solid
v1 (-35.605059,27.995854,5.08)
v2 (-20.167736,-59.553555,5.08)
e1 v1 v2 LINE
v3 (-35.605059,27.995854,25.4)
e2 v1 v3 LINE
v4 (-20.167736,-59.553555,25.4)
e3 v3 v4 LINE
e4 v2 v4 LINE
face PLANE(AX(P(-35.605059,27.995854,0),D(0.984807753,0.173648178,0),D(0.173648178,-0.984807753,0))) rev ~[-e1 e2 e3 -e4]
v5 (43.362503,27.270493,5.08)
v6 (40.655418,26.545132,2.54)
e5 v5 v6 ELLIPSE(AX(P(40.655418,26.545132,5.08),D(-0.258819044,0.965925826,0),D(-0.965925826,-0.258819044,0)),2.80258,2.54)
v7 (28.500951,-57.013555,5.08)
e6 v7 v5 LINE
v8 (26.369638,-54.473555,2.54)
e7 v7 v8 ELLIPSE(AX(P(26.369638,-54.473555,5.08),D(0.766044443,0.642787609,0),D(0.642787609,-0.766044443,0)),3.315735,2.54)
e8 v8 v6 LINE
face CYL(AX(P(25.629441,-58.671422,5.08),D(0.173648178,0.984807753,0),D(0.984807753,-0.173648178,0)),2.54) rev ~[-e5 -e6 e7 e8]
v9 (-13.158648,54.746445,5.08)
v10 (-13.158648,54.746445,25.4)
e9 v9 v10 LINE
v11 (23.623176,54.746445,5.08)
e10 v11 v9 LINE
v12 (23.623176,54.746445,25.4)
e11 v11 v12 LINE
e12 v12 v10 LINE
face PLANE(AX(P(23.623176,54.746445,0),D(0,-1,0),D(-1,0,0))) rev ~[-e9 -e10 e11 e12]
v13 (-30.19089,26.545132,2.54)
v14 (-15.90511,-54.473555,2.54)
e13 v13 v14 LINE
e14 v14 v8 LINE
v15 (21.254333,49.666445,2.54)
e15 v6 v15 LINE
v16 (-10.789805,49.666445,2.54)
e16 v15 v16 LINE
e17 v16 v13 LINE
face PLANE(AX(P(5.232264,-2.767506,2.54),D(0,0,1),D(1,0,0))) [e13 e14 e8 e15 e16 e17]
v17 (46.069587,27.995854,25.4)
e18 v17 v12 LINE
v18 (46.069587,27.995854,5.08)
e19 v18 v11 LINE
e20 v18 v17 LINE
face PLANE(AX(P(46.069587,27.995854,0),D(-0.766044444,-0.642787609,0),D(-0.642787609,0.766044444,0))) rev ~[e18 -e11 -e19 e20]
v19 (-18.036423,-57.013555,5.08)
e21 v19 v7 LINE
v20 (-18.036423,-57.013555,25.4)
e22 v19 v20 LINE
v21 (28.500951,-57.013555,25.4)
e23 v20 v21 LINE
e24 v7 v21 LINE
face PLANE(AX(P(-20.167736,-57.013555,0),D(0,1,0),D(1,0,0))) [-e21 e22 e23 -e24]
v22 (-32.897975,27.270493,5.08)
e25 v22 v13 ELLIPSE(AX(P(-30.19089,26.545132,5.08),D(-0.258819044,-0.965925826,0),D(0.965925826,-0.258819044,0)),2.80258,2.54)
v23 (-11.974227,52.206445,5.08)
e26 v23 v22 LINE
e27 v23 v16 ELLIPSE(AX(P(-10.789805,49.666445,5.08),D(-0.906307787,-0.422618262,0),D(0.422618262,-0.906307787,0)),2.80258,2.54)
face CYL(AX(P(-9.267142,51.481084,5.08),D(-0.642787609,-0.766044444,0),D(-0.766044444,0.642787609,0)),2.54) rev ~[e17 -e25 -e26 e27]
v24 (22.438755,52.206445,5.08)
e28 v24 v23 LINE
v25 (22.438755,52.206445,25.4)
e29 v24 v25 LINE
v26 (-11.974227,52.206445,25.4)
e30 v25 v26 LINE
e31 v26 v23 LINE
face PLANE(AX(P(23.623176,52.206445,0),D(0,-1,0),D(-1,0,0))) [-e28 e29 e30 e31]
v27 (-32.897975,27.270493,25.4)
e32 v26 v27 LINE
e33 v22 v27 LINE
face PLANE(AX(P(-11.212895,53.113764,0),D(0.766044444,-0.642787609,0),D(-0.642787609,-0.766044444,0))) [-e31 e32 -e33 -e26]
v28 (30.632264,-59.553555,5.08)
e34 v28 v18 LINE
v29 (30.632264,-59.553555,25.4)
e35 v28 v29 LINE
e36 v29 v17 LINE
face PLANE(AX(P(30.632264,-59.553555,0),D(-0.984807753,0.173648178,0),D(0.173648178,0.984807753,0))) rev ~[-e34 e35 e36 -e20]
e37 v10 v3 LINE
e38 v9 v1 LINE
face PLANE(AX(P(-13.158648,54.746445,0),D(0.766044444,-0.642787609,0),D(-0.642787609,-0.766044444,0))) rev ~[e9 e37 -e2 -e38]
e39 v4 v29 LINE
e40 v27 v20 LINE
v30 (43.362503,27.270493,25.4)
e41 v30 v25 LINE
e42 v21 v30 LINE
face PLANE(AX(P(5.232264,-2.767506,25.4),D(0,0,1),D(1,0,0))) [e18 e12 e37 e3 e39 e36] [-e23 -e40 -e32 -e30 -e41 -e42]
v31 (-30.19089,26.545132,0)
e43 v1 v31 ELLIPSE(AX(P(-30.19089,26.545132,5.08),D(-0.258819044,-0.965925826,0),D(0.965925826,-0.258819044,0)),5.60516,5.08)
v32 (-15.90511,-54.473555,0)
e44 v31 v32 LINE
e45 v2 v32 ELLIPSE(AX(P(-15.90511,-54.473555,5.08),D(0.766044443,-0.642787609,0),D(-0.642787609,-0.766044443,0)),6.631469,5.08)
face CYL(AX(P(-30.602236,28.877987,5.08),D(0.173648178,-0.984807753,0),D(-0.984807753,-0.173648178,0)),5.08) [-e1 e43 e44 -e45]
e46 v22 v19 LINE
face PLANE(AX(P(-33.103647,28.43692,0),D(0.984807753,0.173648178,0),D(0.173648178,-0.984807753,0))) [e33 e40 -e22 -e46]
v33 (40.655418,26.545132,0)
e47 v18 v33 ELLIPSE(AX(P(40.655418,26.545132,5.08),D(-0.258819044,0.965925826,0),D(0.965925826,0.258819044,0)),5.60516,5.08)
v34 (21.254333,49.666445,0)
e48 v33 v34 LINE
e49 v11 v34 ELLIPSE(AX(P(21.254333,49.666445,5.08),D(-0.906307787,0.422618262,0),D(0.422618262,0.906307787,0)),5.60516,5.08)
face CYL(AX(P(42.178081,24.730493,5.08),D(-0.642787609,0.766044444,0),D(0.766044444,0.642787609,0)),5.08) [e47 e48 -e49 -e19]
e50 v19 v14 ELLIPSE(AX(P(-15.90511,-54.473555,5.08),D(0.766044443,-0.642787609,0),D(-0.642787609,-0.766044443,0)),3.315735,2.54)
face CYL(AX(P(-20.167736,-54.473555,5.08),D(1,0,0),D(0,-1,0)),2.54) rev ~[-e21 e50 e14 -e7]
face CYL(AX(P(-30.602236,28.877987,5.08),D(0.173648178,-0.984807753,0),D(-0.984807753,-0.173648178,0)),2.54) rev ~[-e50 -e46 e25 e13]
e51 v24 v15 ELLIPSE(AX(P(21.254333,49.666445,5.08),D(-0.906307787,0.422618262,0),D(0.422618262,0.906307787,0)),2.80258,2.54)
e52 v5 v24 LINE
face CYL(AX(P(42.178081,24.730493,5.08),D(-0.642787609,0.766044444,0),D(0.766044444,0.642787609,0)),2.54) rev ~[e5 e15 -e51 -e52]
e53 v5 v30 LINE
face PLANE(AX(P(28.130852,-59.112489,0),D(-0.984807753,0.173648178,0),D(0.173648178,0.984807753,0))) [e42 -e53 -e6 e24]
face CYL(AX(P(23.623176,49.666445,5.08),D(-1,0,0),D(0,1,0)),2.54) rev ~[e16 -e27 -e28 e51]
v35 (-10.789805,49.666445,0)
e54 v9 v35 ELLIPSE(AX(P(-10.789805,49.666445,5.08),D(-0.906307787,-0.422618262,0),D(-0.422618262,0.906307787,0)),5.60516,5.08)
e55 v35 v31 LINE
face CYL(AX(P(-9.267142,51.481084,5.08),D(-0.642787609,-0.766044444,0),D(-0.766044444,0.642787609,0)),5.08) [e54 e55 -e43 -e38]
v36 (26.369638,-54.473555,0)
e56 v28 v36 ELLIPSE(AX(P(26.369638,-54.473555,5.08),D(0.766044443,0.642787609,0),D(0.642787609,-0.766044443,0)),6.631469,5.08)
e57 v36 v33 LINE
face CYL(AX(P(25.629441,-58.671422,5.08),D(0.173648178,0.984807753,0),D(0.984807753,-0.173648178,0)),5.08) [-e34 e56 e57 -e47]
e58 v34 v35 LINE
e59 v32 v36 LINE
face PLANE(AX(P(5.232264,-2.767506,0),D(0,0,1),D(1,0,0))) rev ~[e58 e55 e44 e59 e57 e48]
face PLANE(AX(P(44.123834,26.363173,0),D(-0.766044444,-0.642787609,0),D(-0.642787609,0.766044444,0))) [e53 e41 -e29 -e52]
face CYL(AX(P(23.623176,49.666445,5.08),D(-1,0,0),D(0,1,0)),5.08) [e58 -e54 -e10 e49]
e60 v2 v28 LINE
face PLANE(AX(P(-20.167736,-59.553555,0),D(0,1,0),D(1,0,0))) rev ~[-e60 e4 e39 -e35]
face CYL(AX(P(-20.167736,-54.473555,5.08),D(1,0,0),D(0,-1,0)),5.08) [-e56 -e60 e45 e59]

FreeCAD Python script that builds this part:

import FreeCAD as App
import Part
import Sketcher
from FreeCAD import Vector
Q = App.Units.Quantity


def edges_at(feature, points):
    """Names of the edges that pass closest to the given points."""
    edges = feature.Shape.Edges
    near = lambda p: min(range(len(edges)), key=lambda i: edges[i].distToShape(Part.Vertex(*p))[0])
    return sorted({f"Edge{near(p) + 1}" for p in points})


def faces_at(feature, points):
    """Names of the faces that lie closest to the given points."""
    faces = feature.Shape.Faces
    near = lambda p: min(range(len(faces)), key=lambda i: faces[i].distToShape(Part.Vertex(*p))[0])
    return sorted({f"Face{near(p) + 1}" for p in points})


def add_polygon(sketch, points):
    """Adds a closed chain of lines whose ends are joined by coincident constraints."""
    first, n = sketch.GeometryCount, len(points)
    for a, b in zip(points, points[1:] + points[:1]):
        sketch.addGeometry(Part.LineSegment(App.Vector(*a, 0), App.Vector(*b, 0)), False)
    for i in range(n):
        sketch.addConstraint(Sketcher.Constraint("Coincident", first + i, 2, first + (i + 1) % n, 1))

doc = App.newDocument("Part")
body = doc.addObject("PartDesign::Body", "Body")

sketch1 = body.newObject("Sketcher::SketchObject", "Sketch")
sketch1.AttachmentSupport = (doc.getObject("XY_Plane"), [""])
sketch1.MapMode = "FlatFace"
add_polygon(sketch1, [(-13, 55), (-36, 28), (-20, -60), (31, -60), (46, 28), (24, 55)])
sketch1.addConstraint([
    Sketcher.Constraint("Horizontal", 2),
    Sketcher.Constraint("Horizontal", 5),
    Sketcher.Constraint("Horizontal", 0, 2, 3, 2),
    Sketcher.Constraint("Equal", 1, 3),
    Sketcher.Constraint("Equal", 0, 4),
    Sketcher.Constraint("DistanceX", 2, 1, 2, 2, Q("2 in")),
    Sketcher.Constraint("Angle", 0, Q("-130 deg")),
    Sketcher.Constraint("Angle", 1, Q("-80 deg")),
    Sketcher.Constraint("Distance", 1, Q("3.5 in")),
    Sketcher.Constraint("DistanceY", 2, 2, 4, 2, Q("4.5 in")),
    Sketcher.Constraint("DistanceX", 0, 2, -1, 1, 35.605059),
    Sketcher.Constraint("DistanceY", -1, 1, 0, 2, 27.995854),
])
pad1 = body.newObject("PartDesign::Pad", "Pad")
pad1.Profile = sketch1
pad1.Length = Q("1 in")
doc.recompute()

fillet = body.newObject("PartDesign::Fillet", "Fillet")
fillet.Base = (pad1, edges_at(pad1, [
    (-27.886, -15.779, 0),
    (5.232, -59.554, 0),
    (38.351, -15.779, 0),
    (34.846, 41.371, 0),
    (5.232, 54.746, 0),
    (-24.382, 41.371, 0),
]))
fillet.Radius = Q("0.2 in")
doc.recompute()

thickness = body.newObject("PartDesign::Thickness", "Thickness")
thickness.Base = (fillet, faces_at(fillet, [(5.232, -2.404, 25.4)]))
thickness.Value = Q("0.1 in")
thickness.Reversed = True
thickness.Join = "Arc"

doc.recompute()
